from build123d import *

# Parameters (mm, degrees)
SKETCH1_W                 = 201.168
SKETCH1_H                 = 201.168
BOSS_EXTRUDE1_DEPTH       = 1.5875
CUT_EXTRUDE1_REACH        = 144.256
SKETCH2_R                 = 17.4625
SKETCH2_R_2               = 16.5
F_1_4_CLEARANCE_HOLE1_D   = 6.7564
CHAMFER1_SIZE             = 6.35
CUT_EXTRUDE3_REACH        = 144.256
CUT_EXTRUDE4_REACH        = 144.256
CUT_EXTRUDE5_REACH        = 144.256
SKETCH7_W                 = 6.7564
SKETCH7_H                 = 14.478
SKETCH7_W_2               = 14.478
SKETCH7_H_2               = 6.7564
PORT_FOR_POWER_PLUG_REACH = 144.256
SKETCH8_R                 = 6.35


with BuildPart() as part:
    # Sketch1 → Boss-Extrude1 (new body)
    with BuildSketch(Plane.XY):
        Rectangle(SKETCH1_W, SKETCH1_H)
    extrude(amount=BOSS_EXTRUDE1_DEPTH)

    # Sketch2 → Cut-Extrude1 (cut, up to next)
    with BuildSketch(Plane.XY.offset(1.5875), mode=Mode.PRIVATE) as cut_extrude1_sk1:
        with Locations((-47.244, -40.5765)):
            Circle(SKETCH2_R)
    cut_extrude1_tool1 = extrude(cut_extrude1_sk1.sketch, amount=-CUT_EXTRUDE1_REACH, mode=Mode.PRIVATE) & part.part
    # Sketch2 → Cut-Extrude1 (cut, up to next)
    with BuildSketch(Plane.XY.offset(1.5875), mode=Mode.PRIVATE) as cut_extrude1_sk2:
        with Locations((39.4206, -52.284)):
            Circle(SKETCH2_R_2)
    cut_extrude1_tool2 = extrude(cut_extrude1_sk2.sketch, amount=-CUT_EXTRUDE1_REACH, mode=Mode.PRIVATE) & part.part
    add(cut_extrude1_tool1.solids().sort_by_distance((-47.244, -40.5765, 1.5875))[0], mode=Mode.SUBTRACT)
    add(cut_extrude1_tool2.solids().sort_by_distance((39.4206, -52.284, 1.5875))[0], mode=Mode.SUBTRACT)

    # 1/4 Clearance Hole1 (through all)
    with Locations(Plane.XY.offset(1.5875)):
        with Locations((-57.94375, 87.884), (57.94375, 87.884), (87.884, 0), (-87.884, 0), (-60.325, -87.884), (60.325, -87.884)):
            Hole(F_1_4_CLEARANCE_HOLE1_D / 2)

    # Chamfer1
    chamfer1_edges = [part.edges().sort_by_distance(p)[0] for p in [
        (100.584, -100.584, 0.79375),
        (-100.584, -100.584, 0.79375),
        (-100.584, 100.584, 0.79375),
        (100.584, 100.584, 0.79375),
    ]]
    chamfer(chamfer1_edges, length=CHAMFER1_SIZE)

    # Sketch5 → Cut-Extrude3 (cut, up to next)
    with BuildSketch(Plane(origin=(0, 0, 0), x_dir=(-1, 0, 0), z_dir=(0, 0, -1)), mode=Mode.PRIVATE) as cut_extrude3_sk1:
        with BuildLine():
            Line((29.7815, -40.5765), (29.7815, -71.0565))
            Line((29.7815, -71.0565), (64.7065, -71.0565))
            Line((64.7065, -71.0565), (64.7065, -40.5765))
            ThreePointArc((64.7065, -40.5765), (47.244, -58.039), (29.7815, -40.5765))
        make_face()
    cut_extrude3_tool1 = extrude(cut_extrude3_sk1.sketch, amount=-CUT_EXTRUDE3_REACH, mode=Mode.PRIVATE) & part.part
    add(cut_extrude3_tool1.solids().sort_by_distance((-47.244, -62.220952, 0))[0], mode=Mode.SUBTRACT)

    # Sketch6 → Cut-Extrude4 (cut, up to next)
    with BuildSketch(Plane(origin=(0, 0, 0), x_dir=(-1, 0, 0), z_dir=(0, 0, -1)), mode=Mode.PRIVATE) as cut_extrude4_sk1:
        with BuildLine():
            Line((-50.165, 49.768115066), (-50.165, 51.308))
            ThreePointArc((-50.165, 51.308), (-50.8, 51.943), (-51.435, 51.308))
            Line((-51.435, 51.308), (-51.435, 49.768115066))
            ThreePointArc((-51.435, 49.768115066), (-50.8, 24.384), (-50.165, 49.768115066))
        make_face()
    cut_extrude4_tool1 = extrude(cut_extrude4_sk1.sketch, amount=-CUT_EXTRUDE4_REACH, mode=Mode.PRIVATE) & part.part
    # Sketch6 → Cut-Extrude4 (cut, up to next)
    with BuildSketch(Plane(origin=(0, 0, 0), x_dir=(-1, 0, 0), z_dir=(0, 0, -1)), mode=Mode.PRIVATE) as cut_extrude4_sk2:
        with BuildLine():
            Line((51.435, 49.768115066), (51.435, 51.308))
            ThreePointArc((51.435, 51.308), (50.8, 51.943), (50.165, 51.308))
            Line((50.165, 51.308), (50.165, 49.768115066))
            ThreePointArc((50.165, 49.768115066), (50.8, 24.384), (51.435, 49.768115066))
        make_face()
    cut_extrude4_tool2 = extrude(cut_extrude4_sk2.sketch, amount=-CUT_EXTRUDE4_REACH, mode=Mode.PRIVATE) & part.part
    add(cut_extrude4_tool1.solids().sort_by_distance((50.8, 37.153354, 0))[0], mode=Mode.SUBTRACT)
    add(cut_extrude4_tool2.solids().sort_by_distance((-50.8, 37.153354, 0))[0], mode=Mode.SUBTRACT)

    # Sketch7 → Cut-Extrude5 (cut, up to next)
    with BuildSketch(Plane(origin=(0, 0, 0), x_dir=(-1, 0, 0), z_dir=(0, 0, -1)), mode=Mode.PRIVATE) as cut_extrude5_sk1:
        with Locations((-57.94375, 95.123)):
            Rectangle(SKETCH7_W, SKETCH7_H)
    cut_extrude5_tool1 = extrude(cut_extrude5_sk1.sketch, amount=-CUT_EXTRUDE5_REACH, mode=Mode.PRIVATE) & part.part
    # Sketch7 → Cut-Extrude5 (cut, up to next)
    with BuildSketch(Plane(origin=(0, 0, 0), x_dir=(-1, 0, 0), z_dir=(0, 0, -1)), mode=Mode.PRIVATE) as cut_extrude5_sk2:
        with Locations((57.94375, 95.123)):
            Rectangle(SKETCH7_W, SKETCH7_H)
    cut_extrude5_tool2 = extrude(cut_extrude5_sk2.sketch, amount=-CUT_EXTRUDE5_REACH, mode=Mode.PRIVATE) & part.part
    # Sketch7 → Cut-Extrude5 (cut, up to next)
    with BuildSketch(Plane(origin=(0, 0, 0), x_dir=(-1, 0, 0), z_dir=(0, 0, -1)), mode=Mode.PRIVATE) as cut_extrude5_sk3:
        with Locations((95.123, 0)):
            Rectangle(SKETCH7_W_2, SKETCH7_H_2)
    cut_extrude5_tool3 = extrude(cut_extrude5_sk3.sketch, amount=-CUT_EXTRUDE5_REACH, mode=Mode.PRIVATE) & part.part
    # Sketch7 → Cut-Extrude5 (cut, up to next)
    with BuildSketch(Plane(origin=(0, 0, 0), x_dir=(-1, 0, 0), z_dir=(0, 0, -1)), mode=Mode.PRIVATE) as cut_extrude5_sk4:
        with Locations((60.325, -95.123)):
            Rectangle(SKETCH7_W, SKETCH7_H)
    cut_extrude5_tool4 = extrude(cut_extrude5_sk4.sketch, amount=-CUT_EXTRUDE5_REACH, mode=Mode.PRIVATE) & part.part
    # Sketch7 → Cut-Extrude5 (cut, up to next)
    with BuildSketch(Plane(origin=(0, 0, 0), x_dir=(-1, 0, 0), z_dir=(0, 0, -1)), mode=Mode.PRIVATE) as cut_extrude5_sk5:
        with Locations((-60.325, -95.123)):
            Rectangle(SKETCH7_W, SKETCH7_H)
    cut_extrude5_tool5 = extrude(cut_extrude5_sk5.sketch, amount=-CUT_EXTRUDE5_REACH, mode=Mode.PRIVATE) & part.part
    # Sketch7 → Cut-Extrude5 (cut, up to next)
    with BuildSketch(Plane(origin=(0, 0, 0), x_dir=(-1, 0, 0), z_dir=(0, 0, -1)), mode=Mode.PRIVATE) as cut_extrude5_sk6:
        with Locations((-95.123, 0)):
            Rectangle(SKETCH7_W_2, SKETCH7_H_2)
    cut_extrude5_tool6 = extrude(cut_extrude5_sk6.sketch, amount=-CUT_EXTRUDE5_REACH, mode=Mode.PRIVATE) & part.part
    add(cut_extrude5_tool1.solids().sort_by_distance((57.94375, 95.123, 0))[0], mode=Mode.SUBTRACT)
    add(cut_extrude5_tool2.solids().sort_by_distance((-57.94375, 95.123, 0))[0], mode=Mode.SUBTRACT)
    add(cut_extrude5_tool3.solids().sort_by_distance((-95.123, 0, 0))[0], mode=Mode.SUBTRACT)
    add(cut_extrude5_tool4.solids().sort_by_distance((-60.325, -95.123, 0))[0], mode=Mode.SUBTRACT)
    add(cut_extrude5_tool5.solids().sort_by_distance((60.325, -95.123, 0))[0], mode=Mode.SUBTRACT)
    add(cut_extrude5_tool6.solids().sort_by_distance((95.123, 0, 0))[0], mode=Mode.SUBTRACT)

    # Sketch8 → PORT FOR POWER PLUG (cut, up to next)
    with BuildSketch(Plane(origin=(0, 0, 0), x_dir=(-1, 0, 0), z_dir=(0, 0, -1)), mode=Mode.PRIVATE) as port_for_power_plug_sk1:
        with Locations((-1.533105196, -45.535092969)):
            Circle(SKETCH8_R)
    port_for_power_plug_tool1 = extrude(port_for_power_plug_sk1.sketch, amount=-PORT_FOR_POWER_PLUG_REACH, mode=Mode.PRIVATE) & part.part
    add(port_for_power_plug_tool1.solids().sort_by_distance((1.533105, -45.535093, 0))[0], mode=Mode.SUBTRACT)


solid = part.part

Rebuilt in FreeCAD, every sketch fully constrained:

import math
import FreeCAD as App
import Part
import Sketcher
from FreeCAD import Vector
Q = App.Units.Quantity


def edges_at(feature, points):
    """Names of the edges that pass closest to the given points."""
    edges = feature.Shape.Edges
    near = lambda p: min(range(len(edges)), key=lambda i: edges[i].distToShape(Part.Vertex(*p))[0])
    return sorted({f"Edge{near(p) + 1}" for p in points})


def add_polygon(sketch, points):
    """Adds a closed chain of lines whose ends are joined by coincident constraints."""
    first, n = sketch.GeometryCount, len(points)
    for a, b in zip(points, points[1:] + points[:1]):
        sketch.addGeometry(Part.LineSegment(App.Vector(*a, 0), App.Vector(*b, 0)), False)
    for i in range(n):
        sketch.addConstraint(Sketcher.Constraint("Coincident", first + i, 2, first + (i + 1) % n, 1))

doc = App.newDocument("Part")
body = doc.addObject("PartDesign::Body", "Body")

# Sketch on XY plane
sketch1 = doc.addObject("Sketcher::SketchObject", "Sketch")
body.addObject(sketch1)
sketch1.AttachmentSupport = (doc.XY_Plane, [""])
sketch1.MapMode = "FlatFace"
add_polygon(sketch1, [(-101, 101), (-101, -101), (101, -101), (101, 101)])  # lines 0-3
sketch1.addConstraint([
    Sketcher.Constraint("Vertical", 0),
    Sketcher.Constraint("Horizontal", 1),
    Sketcher.Constraint("Vertical", 2),
    Sketcher.Constraint("Horizontal", 3),
    Sketcher.Constraint("Symmetric", 0, 2, 2, 2, -1, 1),
    Sketcher.Constraint("Equal", 3, 0),
    Sketcher.Constraint("DistanceX", 1, 1, 1, 2, Q("7.92 in")),
])
pad1 = doc.addObject("PartDesign::Pad", "Pad")
body.addObject(pad1)
pad1.Profile = sketch1
pad1.Length = Q("0.0625 in")

# Sketch on XY plane
sketch2 = doc.addObject("Sketcher::SketchObject", "Sketch001")
body.addObject(sketch2)
sketch2.AttachmentSupport = (doc.XY_Plane, [""])
sketch2.MapMode = "FlatFace"
sketch2.AttachmentOffset = App.Placement(Vector(0, 0, 0.0625 * 25.4), App.Rotation())
sketch2.addGeometry(Part.Circle(Vector(-47, -41, 0), Vector(0, 0, 1), 17), False)
sketch2.addConstraint([
    Sketcher.Constraint("Diameter", 0, Q("1.375 in")),
    Sketcher.Constraint("DistanceX", 0, 3, -1, 1, Q("1.86 in")),
    Sketcher.Constraint("DistanceY", 0, 3, -1, 1, Q("1.5975 in")),
])
pocket1 = doc.addObject("PartDesign::Pocket", "Pocket")
body.addObject(pocket1)
pocket1.Profile = sketch2
pocket1.Type = "UpToFirst"

# Sketch on XY plane
sketch3 = doc.addObject("Sketcher::SketchObject", "Sketch002")
body.addObject(sketch3)
sketch3.AttachmentSupport = (doc.XY_Plane, [""])
sketch3.MapMode = "FlatFace"
sketch3.AttachmentOffset = App.Placement(Vector(0, 0, 0.0625 * 25.4), App.Rotation())
sketch3.addGeometry(Part.Circle(Vector(39, -52, 0), Vector(0, 0, 1), 16), False)
sketch3.addConstraint([
    Sketcher.Constraint("Diameter", 0, Q("33 mm")),
    Sketcher.Constraint("DistanceX", -1, 1, 0, 3, Q("39.4206 mm")),
    Sketcher.Constraint("DistanceY", 0, 3, -1, 1, Q("52.284 mm")),
])
pocket2 = doc.addObject("PartDesign::Pocket", "Pocket001")
body.addObject(pocket2)
pocket2.Profile = sketch3
pocket2.Type = "UpToFirst"

# Sketch on XY plane
sketch4 = doc.addObject("Sketcher::SketchObject", "Sketch003")
body.addObject(sketch4)
sketch4.AttachmentSupport = (doc.XY_Plane, [""])
sketch4.MapMode = "FlatFace"
sketch4.AttachmentOffset = App.Placement(Vector(0, 0, 0.0625 * 25.4), App.Rotation())
sketch4.addGeometry([
    Part.Circle(Vector(-57.9, 87.9, 0), Vector(0, 0, 1), 3.4),  # 0
    Part.Circle(Vector(57.9, 87.9, 0), Vector(0, 0, 1), 3.4),  # 1
    Part.Circle(Vector(87.9, 0, 0), Vector(0, 0, 1), 3.4),  # 2
    Part.Circle(Vector(-87.9, 0, 0), Vector(0, 0, 1), 3.4),  # 3
    Part.Circle(Vector(-60.3, -87.9, 0), Vector(0, 0, 1), 3.4),  # 4
    Part.Circle(Vector(60.3, -87.9, 0), Vector(0, 0, 1), 3.4),  # 5
], False)
sketch4.addConstraint([
    Sketcher.Constraint("Equal", 0, 1),
    Sketcher.Constraint("Equal", 1, 2),
    Sketcher.Constraint("Equal", 2, 3),
    Sketcher.Constraint("Equal", 3, 4),
    Sketcher.Constraint("Equal", 4, 5),
    Sketcher.Constraint("Symmetric", 2, 3, 3, 3, -1, 1),
    Sketcher.Constraint("Symmetric", 0, 3, 1, 3, -2),
    Sketcher.Constraint("Symmetric", 4, 3, 5, 3, -2),
    Sketcher.Constraint("PointOnObject", 2, 3, -1),
    Sketcher.Constraint("Diameter", 0, Q("0.266 in")),
    Sketcher.Constraint("DistanceY", -1, 1, 0, 3, Q("3.46 in")),
    Sketcher.Constraint("DistanceX", -1, 1, 2, 3, Q("3.46 in")),
    Sketcher.Constraint("DistanceY", 4, 3, -1, 1, Q("3.46 in")),
    Sketcher.Constraint("DistanceX", 4, 3, 5, 3, Q("4.75 in")),
    Sketcher.Constraint("DistanceX", 0, 3, -1, 1, Q("2.28125 in")),
])
doc.recompute()
hole = doc.addObject("PartDesign::Hole", "Hole")
body.addObject(hole)
hole.Profile = sketch4
hole.ThreadType = "None"
hole.Diameter = Q("0.266 in")
hole.DepthType = "ThroughAll"
doc.recompute()

chamfer = doc.addObject("PartDesign::Chamfer", "Chamfer")
body.addObject(chamfer)
chamfer.Base = (hole, edges_at(hole, [
    (100.584, -100.584, 0.794),
    (-100.584, -100.584, 0.794),
    (-100.584, 100.584, 0.794),
    (100.584, 100.584, 0.794),
]))
chamfer.Size = Q("0.25 in")

# Sketch on XY plane
sketch5 = doc.addObject("Sketcher::SketchObject", "Sketch004")
body.addObject(sketch5)
sketch5.AttachmentSupport = (doc.XY_Plane, [""])
sketch5.MapMode = "FlatFace"
sketch5.addGeometry([
    Part.LineSegment(Vector(-30, -41, 0), Vector(-30, -71, 0)),
    Part.LineSegment(Vector(-30, -71, 0), Vector(-65, -71, 0)),
    Part.LineSegment(Vector(-65, -71, 0), Vector(-65, -41, 0)),
    Part.ArcOfCircle(Part.Circle(Vector(-47, -41, 0), Vector(0, 0, 1), 17), math.radians(180), math.radians(360)),
], False)
sketch5.addConstraint([
    Sketcher.Constraint("Coincident", 0, 2, 1, 1),
    Sketcher.Constraint("Coincident", 1, 2, 2, 1),
    Sketcher.Constraint("Tangent", 2, 2, 3, 1),
    Sketcher.Constraint("Tangent", 3, 2, 0, 1),
    Sketcher.Constraint("Vertical", 0),
    Sketcher.Constraint("Horizontal", 1),
    Sketcher.Constraint("Vertical", 2),
    Sketcher.Constraint("DistanceY", 0, 2, 0, 1, Q("1.2 in")),
    Sketcher.Constraint("Radius", 3, Q("0.6875 in")),
    Sketcher.Constraint("DistanceX", 3, 3, -1, 1, Q("1.86 in")),
    Sketcher.Constraint("DistanceY", 3, 3, -1, 1, Q("1.5975 in")),
])
pocket3 = doc.addObject("PartDesign::Pocket", "Pocket002")
body.addObject(pocket3)
pocket3.Profile = sketch5
pocket3.Type = "UpToFirst"
pocket3.Reversed = True

# Sketch on XY plane
sketch6 = doc.addObject("Sketcher::SketchObject", "Sketch005")
body.addObject(sketch6)
sketch6.AttachmentSupport = (doc.XY_Plane, [""])
sketch6.MapMode = "FlatFace"
sketch6.addGeometry([
    Part.LineSegment(Vector(50.2, 49.8, 0), Vector(50.2, 51.3, 0)),
    Part.ArcOfCircle(Part.Circle(Vector(50.8, 51.3, 0), Vector(0, 0, 1), 0.6), math.radians(0), math.radians(180)),
    Part.LineSegment(Vector(51.4, 51.3, 0), Vector(51.4, 49.8, 0)),
    Part.ArcOfCircle(Part.Circle(Vector(50.8, 37.1, 0), Vector(0, 0, 1), 12.7), math.radians(93), math.radians(447)),
], False)
sketch6.addConstraint([
    Sketcher.Constraint("Tangent", 0, 2, 1, 2),
    Sketcher.Constraint("Tangent", 1, 1, 2, 1),
    Sketcher.Constraint("Coincident", 2, 2, 3, 2),
    Sketcher.Constraint("Coincident", 3, 1, 0, 1),
    Sketcher.Constraint("Vertical", 0),
    Sketcher.Constraint("Vertical", 2),
    Sketcher.Constraint("Horizontal", 2, 2, 3, 1),
    Sketcher.Constraint("Radius", 3, Q("0.5 in")),
    Sketcher.Constraint("DistanceX", -1, 1, 1, 3, Q("2 in")),
    Sketcher.Constraint("Radius", 1, Q("0.025 in")),
    Sketcher.Constraint("DistanceY", -1, 1, 1, 3, Q("2.02 in")),
    Sketcher.Constraint("DistanceY", -1, 1, 3, 3, Q("1.46 in")),
])
pocket4 = doc.addObject("PartDesign::Pocket", "Pocket003")
body.addObject(pocket4)
pocket4.Profile = sketch6
pocket4.Type = "UpToFirst"
pocket4.Reversed = True

# Sketch on XY plane
sketch7 = doc.addObject("Sketcher::SketchObject", "Sketch006")
body.addObject(sketch7)
sketch7.AttachmentSupport = (doc.XY_Plane, [""])
sketch7.MapMode = "FlatFace"
sketch7.addGeometry([
    Part.LineSegment(Vector(-51.4, 49.8, 0), Vector(-51.4, 51.3, 0)),
    Part.ArcOfCircle(Part.Circle(Vector(-50.8, 51.3, 0), Vector(0, 0, 1), 0.6), math.radians(0), math.radians(180)),
    Part.LineSegment(Vector(-50.2, 51.3, 0), Vector(-50.2, 49.8, 0)),
    Part.ArcOfCircle(Part.Circle(Vector(-50.8, 37.1, 0), Vector(0, 0, 1), 12.7), math.radians(93), math.radians(447)),
], False)
sketch7.addConstraint([
    Sketcher.Constraint("Tangent", 0, 2, 1, 2),
    Sketcher.Constraint("Tangent", 1, 1, 2, 1),
    Sketcher.Constraint("Coincident", 2, 2, 3, 2),
    Sketcher.Constraint("Coincident", 3, 1, 0, 1),
    Sketcher.Constraint("Vertical", 0),
    Sketcher.Constraint("Vertical", 2),
    Sketcher.Constraint("Horizontal", 2, 2, 3, 1),
    Sketcher.Constraint("Radius", 3, Q("0.5 in")),
    Sketcher.Constraint("DistanceX", 1, 3, -1, 1, Q("2 in")),
    Sketcher.Constraint("Radius", 1, Q("0.025 in")),
    Sketcher.Constraint("DistanceY", -1, 1, 1, 3, Q("2.02 in")),
    Sketcher.Constraint("DistanceY", -1, 1, 3, 3, Q("1.46 in")),
])
pocket5 = doc.addObject("PartDesign::Pocket", "Pocket004")
body.addObject(pocket5)
pocket5.Profile = sketch7
pocket5.Type = "UpToFirst"
pocket5.Reversed = True

# Sketch on XY plane
sketch8 = doc.addObject("Sketcher::SketchObject", "Sketch007")
body.addObject(sketch8)
sketch8.AttachmentSupport = (doc.XY_Plane, [""])
sketch8.MapMode = "FlatFace"
add_polygon(sketch8, [(61, 102), (61, 88), (55, 88), (55, 102)])  # lines 0-3
sketch8.addConstraint([
    Sketcher.Constraint("Vertical", 0),
    Sketcher.Constraint("Horizontal", 1),
    Sketcher.Constraint("Vertical", 2),
    Sketcher.Constraint("Horizontal", 3),
    Sketcher.Constraint("DistanceY", 0, 2, 0, 1, Q("0.57 in")),
    Sketcher.Constraint("DistanceX", 1, 2, 1, 1, Q("0.266 in")),
    Sketcher.Constraint("DistanceY", -1, 1, 0, 2, Q("3.46 in")),
    Sketcher.Constraint("DistanceX", -1, 1, 0, 2, Q("61.32195 mm")),
])
pocket6 = doc.addObject("PartDesign::Pocket", "Pocket005")
body.addObject(pocket6)
pocket6.Profile = sketch8
pocket6.Type = "UpToFirst"
pocket6.Reversed = True

# Sketch on XY plane
sketch9 = doc.addObject("Sketcher::SketchObject", "Sketch008")
body.addObject(sketch9)
sketch9.AttachmentSupport = (doc.XY_Plane, [""])
sketch9.MapMode = "FlatFace"
add_polygon(sketch9, [(-55, 102), (-55, 88), (-61, 88), (-61, 102)])  # lines 0-3
sketch9.addConstraint([
    Sketcher.Constraint("Vertical", 0),
    Sketcher.Constraint("Horizontal", 1),
    Sketcher.Constraint("Vertical", 2),
    Sketcher.Constraint("Horizontal", 3),
    Sketcher.Constraint("DistanceY", 0, 2, 0, 1, Q("0.57 in")),
    Sketcher.Constraint("DistanceX", 1, 2, 1, 1, Q("0.266 in")),
    Sketcher.Constraint("DistanceY", -1, 1, 0, 2, Q("3.46 in")),
    Sketcher.Constraint("DistanceX", 0, 2, -1, 1, Q("54.56555 mm")),
])
pocket7 = doc.addObject("PartDesign::Pocket", "Pocket006")
body.addObject(pocket7)
pocket7.Profile = sketch9
pocket7.Type = "UpToFirst"
pocket7.Reversed = True

# Sketch on XY plane
sketch10 = doc.addObject("Sketcher::SketchObject", "Sketch009")
body.addObject(sketch10)
sketch10.AttachmentSupport = (doc.XY_Plane, [""])
sketch10.MapMode = "FlatFace"
add_polygon(sketch10, [(-88, 3), (-88, -3), (-102, -3), (-102, 3)])  # lines 0-3
sketch10.addConstraint([
    Sketcher.Constraint("Vertical", 0),
    Sketcher.Constraint("Horizontal", 1),
    Sketcher.Constraint("Vertical", 2),
    Sketcher.Constraint("Horizontal", 3),
    Sketcher.Constraint("DistanceX", 1, 2, 1, 1, Q("0.57 in")),
    Sketcher.Constraint("DistanceY", 0, 2, 0, 1, Q("0.266 in")),
    Sketcher.Constraint("DistanceX", 0, 2, -1, 1, Q("3.46 in")),
    Sketcher.Constraint("DistanceY", 0, 2, -1, 1, Q("0.133 in")),
])
pocket8 = doc.addObject("PartDesign::Pocket", "Pocket007")
body.addObject(pocket8)
pocket8.Profile = sketch10
pocket8.Type = "UpToFirst"
pocket8.Reversed = True

# Sketch on XY plane
sketch11 = doc.addObject("Sketcher::SketchObject", "Sketch010")
body.addObject(sketch11)
sketch11.AttachmentSupport = (doc.XY_Plane, [""])
sketch11.MapMode = "FlatFace"
add_polygon(sketch11, [(-57, -88), (-57, -102), (-64, -102), (-64, -88)])  # lines 0-3
sketch11.addConstraint([
    Sketcher.Constraint("Vertical", 0),
    Sketcher.Constraint("Horizontal", 1),
    Sketcher.Constraint("Vertical", 2),
    Sketcher.Constraint("Horizontal", 3),
    Sketcher.Constraint("DistanceY", 0, 2, 0, 1, Q("0.57 in")),
    Sketcher.Constraint("DistanceX", 1, 2, 1, 1, Q("0.266 in")),
    Sketcher.Constraint("DistanceY", 0, 2, -1, 1, Q("4.03 in")),
    Sketcher.Constraint("DistanceX", 0, 2, -1, 1, Q("2.242 in")),
])
pocket9 = doc.addObject("PartDesign::Pocket", "Pocket008")
body.addObject(pocket9)
pocket9.Profile = sketch11
pocket9.Type = "UpToFirst"
pocket9.Reversed = True

# Sketch on XY plane
sketch12 = doc.addObject("Sketcher::SketchObject", "Sketch011")
body.addObject(sketch12)
sketch12.AttachmentSupport = (doc.XY_Plane, [""])
sketch12.MapMode = "FlatFace"
add_polygon(sketch12, [(64, -88), (64, -102), (57, -102), (57, -88)])  # lines 0-3
sketch12.addConstraint([
    Sketcher.Constraint("Vertical", 0),
    Sketcher.Constraint("Horizontal", 1),
    Sketcher.Constraint("Vertical", 2),
    Sketcher.Constraint("Horizontal", 3),
    Sketcher.Constraint("DistanceY", 0, 2, 0, 1, Q("0.57 in")),
    Sketcher.Constraint("DistanceX", 1, 2, 1, 1, Q("0.266 in")),
    Sketcher.Constraint("DistanceY", 0, 2, -1, 1, Q("4.03 in")),
    Sketcher.Constraint("DistanceX", -1, 1, 0, 2, Q("2.508 in")),
])
pocket10 = doc.addObject("PartDesign::Pocket", "Pocket009")
body.addObject(pocket10)
pocket10.Profile = sketch12
pocket10.Type = "UpToFirst"
pocket10.Reversed = True

# Sketch on XY plane
sketch13 = doc.addObject("Sketcher::SketchObject", "Sketch012")
body.addObject(sketch13)
sketch13.AttachmentSupport = (doc.XY_Plane, [""])
sketch13.MapMode = "FlatFace"
add_polygon(sketch13, [(102, 3), (102, -3), (88, -3), (88, 3)])  # lines 0-3
sketch13.addConstraint([
    Sketcher.Constraint("Vertical", 0),
    Sketcher.Constraint("Horizontal", 1),
    Sketcher.Constraint("Vertical", 2),
    Sketcher.Constraint("Horizontal", 3),
    Sketcher.Constraint("DistanceX", 1, 2, 1, 1, Q("0.57 in")),
    Sketcher.Constraint("DistanceY", 0, 2, 0, 1, Q("0.266 in")),
    Sketcher.Constraint("DistanceX", -1, 1, 0, 2, Q("4.03 in")),
    Sketcher.Constraint("DistanceY", 0, 2, -1, 1, Q("0.133 in")),
])
pocket11 = doc.addObject("PartDesign::Pocket", "Pocket010")
body.addObject(pocket11)
pocket11.Profile = sketch13
pocket11.Type = "UpToFirst"
pocket11.Reversed = True

# Sketch on XY plane
sketch14 = doc.addObject("Sketcher::SketchObject", "Sketch013")
body.addObject(sketch14)
sketch14.AttachmentSupport = (doc.XY_Plane, [""])
sketch14.MapMode = "FlatFace"
sketch14.addGeometry(Part.Circle(Vector(2, -46, 0), Vector(0, 0, 1), 6), False)
sketch14.addConstraint([
    Sketcher.Constraint("Diameter", 0, Q("0.5 in")),
    Sketcher.Constraint("DistanceX", -1, 1, 0, 3, Q("1.533105 mm")),
    Sketcher.Constraint("DistanceY", 0, 3, -1, 1, Q("45.535093 mm")),
])
pocket12 = doc.addObject("PartDesign::Pocket", "Pocket011")
body.addObject(pocket12)
pocket12.Profile = sketch14
pocket12.Type = "UpToFirst"
pocket12.Reversed = True

doc.recompute()
